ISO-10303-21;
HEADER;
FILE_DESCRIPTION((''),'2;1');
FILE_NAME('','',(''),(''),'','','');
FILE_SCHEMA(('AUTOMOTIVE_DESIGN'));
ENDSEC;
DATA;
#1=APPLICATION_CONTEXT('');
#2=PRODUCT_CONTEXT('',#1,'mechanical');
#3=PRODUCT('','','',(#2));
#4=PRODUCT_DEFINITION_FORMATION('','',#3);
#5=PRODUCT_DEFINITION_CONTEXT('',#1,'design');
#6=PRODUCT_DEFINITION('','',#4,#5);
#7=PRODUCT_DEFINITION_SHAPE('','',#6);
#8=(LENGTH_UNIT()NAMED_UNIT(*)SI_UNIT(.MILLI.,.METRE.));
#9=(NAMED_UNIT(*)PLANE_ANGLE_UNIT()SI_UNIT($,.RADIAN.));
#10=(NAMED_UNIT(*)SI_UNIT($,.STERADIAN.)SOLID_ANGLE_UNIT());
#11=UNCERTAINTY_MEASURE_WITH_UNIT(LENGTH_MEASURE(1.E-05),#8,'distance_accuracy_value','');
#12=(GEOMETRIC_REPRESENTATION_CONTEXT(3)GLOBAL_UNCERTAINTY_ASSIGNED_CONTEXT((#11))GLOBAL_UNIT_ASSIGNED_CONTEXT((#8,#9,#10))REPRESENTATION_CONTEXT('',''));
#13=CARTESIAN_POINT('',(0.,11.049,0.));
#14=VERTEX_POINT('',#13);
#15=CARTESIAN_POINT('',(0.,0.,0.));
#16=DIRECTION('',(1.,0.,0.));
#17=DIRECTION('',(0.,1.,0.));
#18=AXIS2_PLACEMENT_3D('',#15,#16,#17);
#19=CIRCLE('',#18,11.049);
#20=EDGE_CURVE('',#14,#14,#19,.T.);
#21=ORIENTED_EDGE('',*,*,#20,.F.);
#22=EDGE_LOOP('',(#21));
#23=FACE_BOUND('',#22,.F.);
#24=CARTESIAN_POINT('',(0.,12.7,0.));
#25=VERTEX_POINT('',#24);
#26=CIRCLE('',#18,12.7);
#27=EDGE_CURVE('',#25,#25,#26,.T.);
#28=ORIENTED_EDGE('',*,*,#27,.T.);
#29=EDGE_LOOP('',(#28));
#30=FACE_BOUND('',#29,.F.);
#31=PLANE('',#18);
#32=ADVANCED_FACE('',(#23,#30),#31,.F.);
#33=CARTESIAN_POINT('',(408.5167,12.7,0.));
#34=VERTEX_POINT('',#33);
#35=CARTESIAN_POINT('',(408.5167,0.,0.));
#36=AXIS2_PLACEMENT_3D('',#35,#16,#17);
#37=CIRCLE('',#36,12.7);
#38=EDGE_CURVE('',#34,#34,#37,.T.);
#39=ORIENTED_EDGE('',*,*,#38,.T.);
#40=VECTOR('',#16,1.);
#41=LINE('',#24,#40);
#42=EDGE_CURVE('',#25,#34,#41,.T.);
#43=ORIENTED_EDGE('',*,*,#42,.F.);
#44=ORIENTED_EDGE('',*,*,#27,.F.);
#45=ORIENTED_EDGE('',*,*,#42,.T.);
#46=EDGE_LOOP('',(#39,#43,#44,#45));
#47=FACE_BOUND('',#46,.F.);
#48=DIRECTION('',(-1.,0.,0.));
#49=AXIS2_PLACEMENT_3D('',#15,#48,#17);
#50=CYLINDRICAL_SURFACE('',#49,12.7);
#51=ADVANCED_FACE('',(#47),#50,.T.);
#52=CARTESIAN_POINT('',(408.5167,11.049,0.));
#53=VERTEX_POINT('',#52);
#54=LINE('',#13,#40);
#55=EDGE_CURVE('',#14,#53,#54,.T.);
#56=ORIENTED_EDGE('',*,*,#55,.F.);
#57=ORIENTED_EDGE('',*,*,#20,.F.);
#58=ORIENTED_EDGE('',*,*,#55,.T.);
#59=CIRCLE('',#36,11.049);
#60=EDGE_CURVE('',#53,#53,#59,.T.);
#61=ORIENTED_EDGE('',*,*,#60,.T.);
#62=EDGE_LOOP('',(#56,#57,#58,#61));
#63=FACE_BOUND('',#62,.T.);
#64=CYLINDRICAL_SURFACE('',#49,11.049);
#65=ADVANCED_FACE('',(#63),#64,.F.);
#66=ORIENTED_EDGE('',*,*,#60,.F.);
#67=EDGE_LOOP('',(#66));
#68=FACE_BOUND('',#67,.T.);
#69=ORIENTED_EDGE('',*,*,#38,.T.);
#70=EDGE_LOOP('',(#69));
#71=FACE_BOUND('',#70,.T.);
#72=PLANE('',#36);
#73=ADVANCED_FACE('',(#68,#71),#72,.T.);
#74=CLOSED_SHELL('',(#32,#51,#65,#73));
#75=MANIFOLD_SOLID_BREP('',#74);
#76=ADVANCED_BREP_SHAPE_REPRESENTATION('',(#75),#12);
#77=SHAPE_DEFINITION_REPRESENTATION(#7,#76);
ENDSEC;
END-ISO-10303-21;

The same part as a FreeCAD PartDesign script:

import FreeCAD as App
import Part
import Sketcher
from FreeCAD import Vector
Q = App.Units.Quantity

doc = App.newDocument("Part")
params = doc.addObject("Spreadsheet::Sheet", "Params")
for row, (alias, value) in enumerate([
    ("sketch1_diameter", "1 in"),
    ("sketch1_diameter2", "0.87 in"),
    ("pad1_length", "408.5167 mm"),
], start=1):
    params.set(f"A{row}", alias)
    params.set(f"B{row}", "=" + value)
    params.setAlias(f"B{row}", alias)

body = doc.addObject("PartDesign::Body", "Body")

# Sketch on YZ plane
sketch1 = body.newObject("Sketcher::SketchObject", "Sketch")
sketch1.AttachmentSupport = (doc.getObject("YZ_Plane"), [""])
sketch1.MapMode = "FlatFace"
sketch1.addGeometry(Part.Circle(Vector(0, 0, 0), Vector(0, 0, 1), 13), False)
sketch1.addGeometry(Part.Circle(Vector(0, 0, 0), Vector(0, 0, 1), 11), False)
sketch1.addConstraint(Sketcher.Constraint("Coincident", 0, 3, -1, 1))
sketch1.addConstraint(Sketcher.Constraint("Coincident", 1, 3, -1, 1))
sketch1.addConstraint(Sketcher.Constraint("Diameter", 0, Q("1 in")))
sketch1.addConstraint(Sketcher.Constraint("Diameter", 1, Q("0.87 in")))
sketch1.setExpression("Constraints[2]", "Params.sketch1_diameter")
sketch1.setExpression("Constraints[3]", "Params.sketch1_diameter2")
pad1 = body.newObject("PartDesign::Pad", "Pad")
pad1.Profile = sketch1
pad1.setExpression("Length", "Params.pad1_length")

doc.recompute()
